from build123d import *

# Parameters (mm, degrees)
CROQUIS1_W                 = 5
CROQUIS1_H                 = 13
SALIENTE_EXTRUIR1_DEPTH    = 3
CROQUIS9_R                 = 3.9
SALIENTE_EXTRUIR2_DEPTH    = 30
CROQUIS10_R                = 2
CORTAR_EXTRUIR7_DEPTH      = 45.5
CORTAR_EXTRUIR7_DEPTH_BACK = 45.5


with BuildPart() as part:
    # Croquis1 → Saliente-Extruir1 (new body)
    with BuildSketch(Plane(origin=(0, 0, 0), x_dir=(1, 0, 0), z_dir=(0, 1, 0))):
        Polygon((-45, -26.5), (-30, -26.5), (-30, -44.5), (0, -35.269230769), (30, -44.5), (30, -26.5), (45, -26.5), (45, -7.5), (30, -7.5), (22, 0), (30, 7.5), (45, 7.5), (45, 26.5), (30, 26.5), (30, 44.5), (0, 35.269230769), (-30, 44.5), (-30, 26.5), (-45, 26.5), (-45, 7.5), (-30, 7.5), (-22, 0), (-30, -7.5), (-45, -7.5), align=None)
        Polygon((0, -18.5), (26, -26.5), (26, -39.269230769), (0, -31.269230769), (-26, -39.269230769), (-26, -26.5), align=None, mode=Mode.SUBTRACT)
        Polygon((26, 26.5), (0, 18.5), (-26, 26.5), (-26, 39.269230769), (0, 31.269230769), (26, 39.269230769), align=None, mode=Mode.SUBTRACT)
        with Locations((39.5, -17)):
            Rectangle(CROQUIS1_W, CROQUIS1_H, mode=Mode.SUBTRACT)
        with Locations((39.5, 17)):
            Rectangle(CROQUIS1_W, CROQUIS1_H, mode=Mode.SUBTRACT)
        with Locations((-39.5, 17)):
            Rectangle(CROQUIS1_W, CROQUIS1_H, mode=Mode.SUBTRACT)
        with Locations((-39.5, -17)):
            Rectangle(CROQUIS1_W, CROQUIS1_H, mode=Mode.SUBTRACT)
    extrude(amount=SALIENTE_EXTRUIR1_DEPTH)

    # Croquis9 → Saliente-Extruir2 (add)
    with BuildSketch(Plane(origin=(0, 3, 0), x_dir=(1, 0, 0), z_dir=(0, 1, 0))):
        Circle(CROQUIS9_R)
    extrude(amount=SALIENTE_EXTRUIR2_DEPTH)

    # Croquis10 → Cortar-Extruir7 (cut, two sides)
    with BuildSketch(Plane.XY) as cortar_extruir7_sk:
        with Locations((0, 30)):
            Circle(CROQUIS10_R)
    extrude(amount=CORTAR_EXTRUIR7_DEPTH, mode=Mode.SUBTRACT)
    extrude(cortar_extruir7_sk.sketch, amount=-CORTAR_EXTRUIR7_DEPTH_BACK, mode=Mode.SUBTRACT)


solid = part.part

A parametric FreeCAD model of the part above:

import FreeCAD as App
import Part
import Sketcher
from FreeCAD import Vector
Q = App.Units.Quantity


def add_polygon(sketch, points):
    """Adds a closed chain of lines whose ends are joined by coincident constraints."""
    first, n = sketch.GeometryCount, len(points)
    for a, b in zip(points, points[1:] + points[:1]):
        sketch.addGeometry(Part.LineSegment(App.Vector(*a, 0), App.Vector(*b, 0)), False)
    for i in range(n):
        sketch.addConstraint(Sketcher.Constraint("Coincident", first + i, 2, first + (i + 1) % n, 1))

doc = App.newDocument("Part")
body = doc.addObject("PartDesign::Body", "Body")

# Sketch on XZ plane
sketch1 = doc.addObject("Sketcher::SketchObject", "Sketch")
body.addObject(sketch1)
sketch1.AttachmentSupport = (doc.XZ_Plane, [""])
sketch1.MapMode = "FlatFace"
add_polygon(sketch1, [(-45, 26), (-30, 26), (-30, 44), (0, 35), (30, 44), (30, 26), (45, 26), (45, 8), (30, 8), (22, 0), (30, -8), (45, -8), (45, -26), (30, -26), (30, -44), (0, -35), (-30, -44), (-30, -26), (-45, -26), (-45, -8), (-30, -8), (-22, 0), (-30, 8), (-45, 8)])  # lines 0-23
add_polygon(sketch1, [(-37, 24), (-42, 24), (-42, 10), (-37, 10)])  # lines 24-27
add_polygon(sketch1, [(-26, 26), (0, 18), (26, 26), (26, 39), (0, 31), (-26, 39)])  # lines 28-33
add_polygon(sketch1, [(42, 24), (37, 24), (37, 10), (42, 10)])  # lines 34-37
add_polygon(sketch1, [(-37, -10), (-42, -10), (-42, -24), (-37, -24)])  # lines 38-41
add_polygon(sketch1, [(42, -10), (37, -10), (37, -24), (42, -24)])  # lines 42-45
add_polygon(sketch1, [(26, -39), (26, -26), (0, -18), (-26, -26), (-26, -39), (0, -31)])  # lines 46-51
sketch1.addConstraint([
    Sketcher.Constraint("Horizontal", 0),
    Sketcher.Constraint("Vertical", 1),
    Sketcher.Constraint("Vertical", 4),
    Sketcher.Constraint("Horizontal", 5),
    Sketcher.Constraint("Vertical", 6),
    Sketcher.Constraint("Horizontal", 7),
    Sketcher.Constraint("Horizontal", 10),
    Sketcher.Constraint("Vertical", 11),
    Sketcher.Constraint("Horizontal", 12),
    Sketcher.Constraint("Vertical", 13),
    Sketcher.Constraint("Vertical", 16),
    Sketcher.Constraint("Horizontal", 17),
    Sketcher.Constraint("Vertical", 18),
    Sketcher.Constraint("Horizontal", 19),
    Sketcher.Constraint("Horizontal", 22),
    Sketcher.Constraint("Vertical", 23),
    Sketcher.Constraint("Horizontal", 24),
    Sketcher.Constraint("Vertical", 25),
    Sketcher.Constraint("Horizontal", 26),
    Sketcher.Constraint("Vertical", 27),
    Sketcher.Constraint("Vertical", 30),
    Sketcher.Constraint("Vertical", 33),
    Sketcher.Constraint("Horizontal", 34),
    Sketcher.Constraint("Vertical", 35),
    Sketcher.Constraint("Horizontal", 36),
    Sketcher.Constraint("Vertical", 37),
    Sketcher.Constraint("Horizontal", 38),
    Sketcher.Constraint("Vertical", 39),
    Sketcher.Constraint("Horizontal", 40),
    Sketcher.Constraint("Vertical", 41),
    Sketcher.Constraint("Horizontal", 42),
    Sketcher.Constraint("Vertical", 43),
    Sketcher.Constraint("Horizontal", 44),
    Sketcher.Constraint("Vertical", 45),
    Sketcher.Constraint("Vertical", 46),
    Sketcher.Constraint("Vertical", 49),
    Sketcher.Constraint("Symmetric", 0, 2, 12, 2, -1, 1),
    Sketcher.Constraint("Symmetric", 2, 2, 14, 2, -1, 1),
    Sketcher.Constraint("Symmetric", 3, 2, 15, 2, -1, 1),
    Sketcher.Constraint("Symmetric", 5, 2, 17, 2, -1, 1),
    Sketcher.Constraint("Symmetric", 7, 2, 19, 2, -1, 1),
    Sketcher.Constraint("Symmetric", 8, 2, 20, 2, -1, 1),
    Sketcher.Constraint("Symmetric", 9, 2, 21, 2, -1, 1),
    Sketcher.Constraint("Symmetric", 36, 2, 38, 2, -1, 1),
    Sketcher.Constraint("Symmetric", 34, 2, 40, 2, -1, 1),
    Sketcher.Constraint("Symmetric", 26, 2, 42, 2, -1, 1),
    Sketcher.Constraint("Symmetric", 24, 2, 44, 2, -1, 1),
    Sketcher.Constraint("Symmetric", 33, 2, 46, 2, -1, 1),
    Sketcher.Constraint("Symmetric", 28, 2, 47, 2, -1, 1),
    Sketcher.Constraint("Symmetric", 29, 2, 48, 2, -1, 1),
    Sketcher.Constraint("Symmetric", 31, 2, 50, 2, -1, 1),
    Sketcher.Constraint("Symmetric", 1, 2, 3, 2, -2),
    Sketcher.Constraint("Symmetric", 11, 2, 17, 2, -2),
    Sketcher.Constraint("Symmetric", 9, 2, 19, 2, -2),
    Sketcher.Constraint("Symmetric", 30, 2, 32, 2, -2),
    Sketcher.Constraint("Symmetric", 27, 2, 34, 2, -2),
    Sketcher.Constraint("Symmetric", 25, 2, 36, 2, -2),
    Sketcher.Constraint("PointOnObject", 2, 2, -2),
    Sketcher.Constraint("PointOnObject", 8, 2, -1),
    Sketcher.Constraint("PointOnObject", 28, 2, -2),
    Sketcher.Constraint("PointOnObject", 31, 2, -2),
    Sketcher.Constraint("Parallel", 2, 14),
    Sketcher.Constraint("Parallel", 14, 28),
    Sketcher.Constraint("Parallel", 15, 29),
    Sketcher.Constraint("Parallel", 29, 31),
    Sketcher.Constraint("Parallel", 48, 50),
    Sketcher.Constraint("Parallel", 47, 51),
    Sketcher.Constraint("Horizontal", 23, 2, 29, 2),
    Sketcher.Constraint("Vertical", 4, 2, 7, 2),
    Sketcher.Constraint("Vertical", 18, 2, 22, 2),
    Sketcher.Constraint("DistanceX", 0, 1, 0, 2, Q("15 mm")),
    Sketcher.Constraint("DistanceX", 24, 2, 24, 1, Q("5 mm")),
    Sketcher.Constraint("DistanceY", 1, 1, 1, 2, Q("18 mm")),
    Sketcher.Constraint("DistanceY", 6, 2, 6, 1, Q("19 mm")),
    Sketcher.Constraint("DistanceY", 25, 2, 25, 1, Q("13 mm")),
    Sketcher.Constraint("DistanceX", 0, 2, -1, 1, Q("30 mm")),
    Sketcher.Constraint("DistanceX", -1, 1, 8, 2, Q("22 mm")),
    Sketcher.Constraint("DistanceX", 24, 2, -1, 1, Q("42 mm")),
    Sketcher.Constraint("DistanceX", -1, 1, 29, 2, Q("26 mm")),
    Sketcher.Constraint("DistanceY", 9, 2, 7, 2, Q("15 mm")),
    Sketcher.Constraint("DistanceY", 24, 2, 23, 2, Q("3 mm")),
    Sketcher.Constraint("DistanceY", 28, 2, 0, 2, Q("8 mm")),
    Sketcher.Constraint("DistanceY", 2, 2, 30, 2, Q("4 mm")),
])
pad1 = doc.addObject("PartDesign::Pad", "Pad")
body.addObject(pad1)
pad1.Profile = sketch1
pad1.Length = 3
pad1.Reversed = True

# Sketch on XZ plane
sketch2 = doc.addObject("Sketcher::SketchObject", "Sketch001")
body.addObject(sketch2)
sketch2.AttachmentSupport = (doc.XZ_Plane, [""])
sketch2.MapMode = "FlatFace"
sketch2.AttachmentOffset = App.Placement(Vector(0, 0, -3), App.Rotation())
sketch2.addGeometry(Part.Circle(Vector(0, 0, 0), Vector(0, 0, 1), 3.9), False)
sketch2.addConstraint([
    Sketcher.Constraint("Coincident", 0, 3, -1, 1),
    Sketcher.Constraint("Diameter", 0, Q("7.8 mm")),
])
pad2 = doc.addObject("PartDesign::Pad", "Pad001")
body.addObject(pad2)
pad2.Profile = sketch2
pad2.Length = 30
pad2.Reversed = True

# Sketch on XY plane
sketch3 = doc.addObject("Sketcher::SketchObject", "Sketch002")
body.addObject(sketch3)
sketch3.AttachmentSupport = (doc.XY_Plane, [""])
sketch3.MapMode = "FlatFace"
sketch3.addGeometry(Part.Circle(Vector(0, 30, 0), Vector(0, 0, 1), 2), False)
sketch3.addConstraint([
    Sketcher.Constraint("PointOnObject", 0, 3, -2),
    Sketcher.Constraint("Diameter", 0, Q("4 mm")),
    Sketcher.Constraint("DistanceY", -1, 1, 0, 3, Q("30 mm")),
])
pocket1 = doc.addObject("PartDesign::Pocket", "Pocket")
body.addObject(pocket1)
pocket1.Profile = sketch3
pocket1.Type = "ThroughAll"
pocket1.Midplane = True

doc.recompute()
